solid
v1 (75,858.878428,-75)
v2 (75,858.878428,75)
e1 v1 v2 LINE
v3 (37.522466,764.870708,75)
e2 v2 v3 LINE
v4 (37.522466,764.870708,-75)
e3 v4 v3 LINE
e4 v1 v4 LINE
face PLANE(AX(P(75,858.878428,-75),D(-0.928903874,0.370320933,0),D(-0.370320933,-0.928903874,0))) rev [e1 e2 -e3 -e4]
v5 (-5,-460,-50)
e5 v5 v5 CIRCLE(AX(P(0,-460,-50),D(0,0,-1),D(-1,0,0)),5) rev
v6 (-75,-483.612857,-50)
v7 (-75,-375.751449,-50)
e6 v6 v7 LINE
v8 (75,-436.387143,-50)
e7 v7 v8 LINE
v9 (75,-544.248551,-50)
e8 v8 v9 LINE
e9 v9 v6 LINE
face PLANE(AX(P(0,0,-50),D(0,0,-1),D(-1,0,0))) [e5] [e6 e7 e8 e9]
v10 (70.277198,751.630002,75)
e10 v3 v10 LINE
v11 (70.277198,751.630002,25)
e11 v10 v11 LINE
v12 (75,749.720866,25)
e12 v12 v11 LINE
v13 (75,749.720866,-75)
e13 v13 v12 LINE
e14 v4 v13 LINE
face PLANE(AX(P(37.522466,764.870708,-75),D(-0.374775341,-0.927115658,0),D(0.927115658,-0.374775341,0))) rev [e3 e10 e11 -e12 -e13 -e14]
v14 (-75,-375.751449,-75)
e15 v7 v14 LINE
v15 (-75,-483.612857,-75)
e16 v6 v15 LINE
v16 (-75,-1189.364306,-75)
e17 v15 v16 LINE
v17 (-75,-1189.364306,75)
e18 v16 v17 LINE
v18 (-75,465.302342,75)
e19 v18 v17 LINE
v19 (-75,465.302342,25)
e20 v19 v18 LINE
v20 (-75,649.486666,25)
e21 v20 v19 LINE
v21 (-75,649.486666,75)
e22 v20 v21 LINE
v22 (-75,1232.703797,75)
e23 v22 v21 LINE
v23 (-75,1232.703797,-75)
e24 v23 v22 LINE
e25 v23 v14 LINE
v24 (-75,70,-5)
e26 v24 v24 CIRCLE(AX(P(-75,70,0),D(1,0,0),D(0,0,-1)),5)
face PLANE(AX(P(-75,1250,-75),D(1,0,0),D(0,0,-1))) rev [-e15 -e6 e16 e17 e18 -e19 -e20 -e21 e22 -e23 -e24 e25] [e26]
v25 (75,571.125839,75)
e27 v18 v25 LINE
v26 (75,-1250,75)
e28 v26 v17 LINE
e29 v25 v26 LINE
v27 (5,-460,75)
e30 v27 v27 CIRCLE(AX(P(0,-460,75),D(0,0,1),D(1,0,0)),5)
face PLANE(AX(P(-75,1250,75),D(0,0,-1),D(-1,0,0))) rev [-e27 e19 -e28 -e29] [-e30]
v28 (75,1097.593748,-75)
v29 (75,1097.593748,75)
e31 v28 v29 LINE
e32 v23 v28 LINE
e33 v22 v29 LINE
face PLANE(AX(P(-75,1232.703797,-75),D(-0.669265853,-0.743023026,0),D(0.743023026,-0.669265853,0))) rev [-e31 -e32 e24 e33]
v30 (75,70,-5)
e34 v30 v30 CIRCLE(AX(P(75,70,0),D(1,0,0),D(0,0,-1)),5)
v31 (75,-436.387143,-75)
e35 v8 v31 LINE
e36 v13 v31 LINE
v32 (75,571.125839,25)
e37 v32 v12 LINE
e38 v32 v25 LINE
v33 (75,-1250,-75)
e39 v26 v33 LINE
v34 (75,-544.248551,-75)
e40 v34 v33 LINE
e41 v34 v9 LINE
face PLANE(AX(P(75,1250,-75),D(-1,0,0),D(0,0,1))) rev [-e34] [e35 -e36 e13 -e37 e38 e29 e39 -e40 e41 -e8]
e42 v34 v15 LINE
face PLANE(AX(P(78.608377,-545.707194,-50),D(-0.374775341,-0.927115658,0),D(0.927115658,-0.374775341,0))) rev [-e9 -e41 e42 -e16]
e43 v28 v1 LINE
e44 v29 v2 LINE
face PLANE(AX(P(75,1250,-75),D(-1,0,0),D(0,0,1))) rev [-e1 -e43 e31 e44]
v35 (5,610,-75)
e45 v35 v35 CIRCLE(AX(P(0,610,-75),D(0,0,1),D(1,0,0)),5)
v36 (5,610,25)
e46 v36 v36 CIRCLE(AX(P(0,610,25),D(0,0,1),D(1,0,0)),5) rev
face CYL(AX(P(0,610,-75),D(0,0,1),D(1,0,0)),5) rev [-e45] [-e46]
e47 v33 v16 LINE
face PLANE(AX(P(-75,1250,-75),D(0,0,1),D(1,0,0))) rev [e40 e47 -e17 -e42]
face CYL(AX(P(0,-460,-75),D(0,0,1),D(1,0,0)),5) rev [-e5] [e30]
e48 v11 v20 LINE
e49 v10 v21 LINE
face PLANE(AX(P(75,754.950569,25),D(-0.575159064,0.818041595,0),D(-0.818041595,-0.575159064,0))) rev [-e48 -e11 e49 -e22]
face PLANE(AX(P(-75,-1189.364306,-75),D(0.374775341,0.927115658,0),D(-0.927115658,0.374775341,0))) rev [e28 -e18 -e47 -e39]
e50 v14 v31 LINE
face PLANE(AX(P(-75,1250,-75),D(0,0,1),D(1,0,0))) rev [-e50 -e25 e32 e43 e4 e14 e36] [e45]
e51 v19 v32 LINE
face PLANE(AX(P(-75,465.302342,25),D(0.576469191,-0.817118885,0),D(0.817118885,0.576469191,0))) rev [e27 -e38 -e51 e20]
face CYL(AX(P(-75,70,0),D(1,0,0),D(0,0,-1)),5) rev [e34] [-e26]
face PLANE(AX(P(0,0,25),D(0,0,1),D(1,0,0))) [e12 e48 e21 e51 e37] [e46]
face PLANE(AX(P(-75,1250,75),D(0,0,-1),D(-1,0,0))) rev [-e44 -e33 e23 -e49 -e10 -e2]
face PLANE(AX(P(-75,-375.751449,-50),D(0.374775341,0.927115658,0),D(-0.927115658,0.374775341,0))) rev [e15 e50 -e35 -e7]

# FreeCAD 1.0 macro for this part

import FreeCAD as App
import Part
import Sketcher
from FreeCAD import Vector
Q = App.Units.Quantity


def add_polygon(sketch, points):
    """Adds a closed chain of lines whose ends are joined by coincident constraints."""
    first, n = sketch.GeometryCount, len(points)
    for a, b in zip(points, points[1:] + points[:1]):
        sketch.addGeometry(Part.LineSegment(App.Vector(*a, 0), App.Vector(*b, 0)), False)
    for i in range(n):
        sketch.addConstraint(Sketcher.Constraint("Coincident", first + i, 2, first + (i + 1) % n, 1))

doc = App.newDocument("Part")
body = doc.addObject("PartDesign::Body", "Body")

# Sketch on XZ plane
sketch1 = body.newObject("Sketcher::SketchObject", "Sketch")
sketch1.AttachmentSupport = (doc.getObject("XZ_Plane"), [""])
sketch1.MapMode = "FlatFace"
add_polygon(sketch1, [(-75, -75), (-75, 75), (75, 75), (75, -75)])  # lines 0-3
sketch1.addConstraint(Sketcher.Constraint("Vertical", 0))
sketch1.addConstraint(Sketcher.Constraint("Horizontal", 1))
sketch1.addConstraint(Sketcher.Constraint("Vertical", 2))
sketch1.addConstraint(Sketcher.Constraint("Horizontal", 3))
sketch1.addConstraint(Sketcher.Constraint("Symmetric", 0, 2, 2, 2, -1, 1))
sketch1.addConstraint(Sketcher.Constraint("Equal", 3, 0))
sketch1.addConstraint(Sketcher.Constraint("DistanceX", 1, 1, 1, 2, Q("150 mm")))
pad1 = body.newObject("PartDesign::Pad", "Pad")
pad1.Profile = sketch1
pad1.Length = 2500
pad1.Midplane = True

# Sketch on XY plane
sketch2 = body.newObject("Sketcher::SketchObject", "Sketch001")
sketch2.AttachmentSupport = (doc.getObject("XY_Plane"), [""])
sketch2.MapMode = "FlatFace"
sketch2.AttachmentOffset = App.Placement(Vector(0, 0, 75), App.Rotation())
sketch2.addGeometry(Part.Circle(Vector(0, 610, 0), Vector(0, 0, 1), 5), False)
sketch2.addGeometry(Part.Circle(Vector(0, -460, 0), Vector(0, 0, 1), 5), False)
sketch2.addConstraint(Sketcher.Constraint("Equal", 0, 1))
sketch2.addConstraint(Sketcher.Constraint("PointOnObject", 0, 3, -2))
sketch2.addConstraint(Sketcher.Constraint("PointOnObject", 1, 3, -2))
sketch2.addConstraint(Sketcher.Constraint("Diameter", 0, Q("10 mm")))
sketch2.addConstraint(Sketcher.Constraint("DistanceY", -1, 1, 0, 3, Q("610 mm")))
sketch2.addConstraint(Sketcher.Constraint("DistanceY", 1, 3, -1, 1, Q("460 mm")))
pocket1 = body.newObject("PartDesign::Pocket", "Pocket")
pocket1.Profile = sketch2
pocket1.Type = "ThroughAll"

# Sketch on XY plane
sketch3 = body.newObject("Sketcher::SketchObject", "Sketch002")
sketch3.AttachmentSupport = (doc.getObject("XY_Plane"), [""])
sketch3.MapMode = "FlatFace"
sketch3.AttachmentOffset = App.Placement(Vector(0, 0, 75), App.Rotation())
add_polygon(sketch3, [(-75, 1232.703797), (75, 1097.593748), (75, 1250), (-75, 1250)])  # lines 0-3
sketch3.addConstraint(Sketcher.Constraint("Vertical", 1))
sketch3.addConstraint(Sketcher.Constraint("Horizontal", 2))
sketch3.addConstraint(Sketcher.Constraint("Vertical", 3))
sketch3.addConstraint(Sketcher.Constraint("DistanceX", 2, 2, 2, 1, Q("150 mm")))
sketch3.addConstraint(Sketcher.Constraint("DistanceX", -1, 1, 0, 2, Q("75 mm")))
sketch3.addConstraint(Sketcher.Constraint("DistanceY", -1, 1, 1, 2, Q("1250 mm")))
sketch3.addConstraint(Sketcher.Constraint("DistanceY", 1, 1, 1, 2, Q("152.406252 mm")))
sketch3.addConstraint(Sketcher.Constraint("DistanceY", 3, 2, 3, 1, Q("17.296203 mm")))
pocket2 = body.newObject("PartDesign::Pocket", "Pocket001")
pocket2.Profile = sketch3
pocket2.Type = "ThroughAll"

# Sketch on XY plane
sketch4 = body.newObject("Sketcher::SketchObject", "Sketch003")
sketch4.AttachmentSupport = (doc.getObject("XY_Plane"), [""])
sketch4.MapMode = "FlatFace"
sketch4.AttachmentOffset = App.Placement(Vector(0, 0, 75), App.Rotation())
add_polygon(sketch4, [(75, 858.878428), (37.522466, 764.870708), (75, 749.720866)])  # lines 0-2
sketch4.addConstraint(Sketcher.Constraint("Vertical", 2))
sketch4.addConstraint(Sketcher.Constraint("DistanceX", -1, 1, 1, 2, Q("75 mm")))
sketch4.addConstraint(Sketcher.Constraint("Distance", 0, Q("101.202851 mm")))
sketch4.addConstraint(Sketcher.Constraint("DistanceY", 2, 1, 2, 2, Q("109.157562 mm")))
sketch4.addConstraint(Sketcher.Constraint("DistanceY", -1, 1, 2, 2, Q("858.878428 mm")))
sketch4.addConstraint(Sketcher.Constraint("DistanceY", 1, 2, 0, 2, Q("15.149842 mm")))
pocket3 = body.newObject("PartDesign::Pocket", "Pocket002")
pocket3.Profile = sketch4
pocket3.Type = "ThroughAll"

# Sketch on YZ plane
sketch5 = body.newObject("Sketcher::SketchObject", "Sketch004")
sketch5.AttachmentSupport = (doc.getObject("YZ_Plane"), [""])
sketch5.MapMode = "FlatFace"
sketch5.AttachmentOffset = App.Placement(Vector(0, 0, 75), App.Rotation())
sketch5.addGeometry(Part.Circle(Vector(70, 0, 0), Vector(0, 0, 1), 5), False)
sketch5.addConstraint(Sketcher.Constraint("PointOnObject", 0, 3, -1))
sketch5.addConstraint(Sketcher.Constraint("Diameter", 0, Q("10 mm")))
sketch5.addConstraint(Sketcher.Constraint("DistanceX", -1, 1, 0, 3, Q("70 mm")))
pocket4 = body.newObject("PartDesign::Pocket", "Pocket003")
pocket4.Profile = sketch5
pocket4.Type = "ThroughAll"

# Sketch on XY plane
sketch6 = body.newObject("Sketcher::SketchObject", "Sketch005")
sketch6.AttachmentSupport = (doc.getObject("XY_Plane"), [""])
sketch6.MapMode = "FlatFace"
sketch6.AttachmentOffset = App.Placement(Vector(0, 0, 75), App.Rotation())
add_polygon(sketch6, [(-75, 649.486666), (-75, 465.302342), (75, 571.125839), (75, 754.950569)])  # lines 0-3
sketch6.addConstraint(Sketcher.Constraint("Vertical", 0))
sketch6.addConstraint(Sketcher.Constraint("Vertical", 2))
sketch6.addConstraint(Sketcher.Constraint("DistanceX", 0, 2, -1, 1, Q("75 mm")))
sketch6.addConstraint(Sketcher.Constraint("DistanceX", -1, 1, 1, 2, Q("75 mm")))
sketch6.addConstraint(Sketcher.Constraint("DistanceY", 2, 1, 2, 2, Q("183.82473 mm")))
sketch6.addConstraint(Sketcher.Constraint("Distance", 1, Q("183.571819 mm")))
sketch6.addConstraint(Sketcher.Constraint("Distance", 3, Q("183.364759 mm")))
sketch6.addConstraint(Sketcher.Constraint("DistanceY", -1, 1, 0, 2, Q("465.302342 mm")))
pocket5 = body.newObject("PartDesign::Pocket", "Pocket004")
pocket5.Profile = sketch6
pocket5.Length = 50

# Sketch on XY plane
sketch7 = body.newObject("Sketcher::SketchObject", "Sketch006")
sketch7.AttachmentSupport = (doc.getObject("XY_Plane"), [""])
sketch7.MapMode = "FlatFace"
sketch7.AttachmentOffset = App.Placement(Vector(0, 0, -75), App.Rotation())
add_polygon(sketch7, [(78.608377, -545.707194), (-75, -483.612857), (-75, -375.751449), (75, -436.387143)])  # lines 0-3
sketch7.addConstraint(Sketcher.Constraint("Vertical", 1))
sketch7.addConstraint(Sketcher.Constraint("Parallel", 0, 2))
sketch7.addConstraint(Sketcher.Constraint("DistanceX", 0, 2, -1, 1, Q("75 mm")))
sketch7.addConstraint(Sketcher.Constraint("DistanceX", -1, 1, 2, 2, Q("75 mm")))
sketch7.addConstraint(Sketcher.Constraint("Distance", 2, Q("161.792112 mm")))
sketch7.addConstraint(Sketcher.Constraint("DistanceY", 1, 1, 1, 2, Q("107.861408 mm")))
sketch7.addConstraint(Sketcher.Constraint("DistanceY", 1, 2, -1, 1, Q("375.751449 mm")))
sketch7.addConstraint(Sketcher.Constraint("DistanceY", 3, 2, 2, 2, Q("109.320051 mm")))
pocket6 = body.newObject("PartDesign::Pocket", "Pocket005")
pocket6.Profile = sketch7
pocket6.Length = 25
pocket6.Reversed = True

# Sketch on XY plane
sketch8 = body.newObject("Sketcher::SketchObject", "Sketch007")
sketch8.AttachmentSupport = (doc.getObject("XY_Plane"), [""])
sketch8.MapMode = "FlatFace"
sketch8.AttachmentOffset = App.Placement(Vector(0, 0, 75), App.Rotation())
add_polygon(sketch8, [(75, -1250), (-75, -1189.364306), (-75, -1250)])  # lines 0-2
sketch8.addConstraint(Sketcher.Constraint("Vertical", 1))
sketch8.addConstraint(Sketcher.Constraint("Horizontal", 2))
sketch8.addConstraint(Sketcher.Constraint("DistanceX", 2, 1, 2, 2, Q("150 mm")))
sketch8.addConstraint(Sketcher.Constraint("DistanceX", 0, 2, -1, 1, Q("75 mm")))
sketch8.addConstraint(Sketcher.Constraint("DistanceY", 1, 2, -1, 1, Q("1250 mm")))
sketch8.addConstraint(Sketcher.Constraint("Distance", 0, Q("161.792112 mm")))
pocket7 = body.newObject("PartDesign::Pocket", "Pocket006")
pocket7.Profile = sketch8
pocket7.Type = "ThroughAll"

doc.recompute()
